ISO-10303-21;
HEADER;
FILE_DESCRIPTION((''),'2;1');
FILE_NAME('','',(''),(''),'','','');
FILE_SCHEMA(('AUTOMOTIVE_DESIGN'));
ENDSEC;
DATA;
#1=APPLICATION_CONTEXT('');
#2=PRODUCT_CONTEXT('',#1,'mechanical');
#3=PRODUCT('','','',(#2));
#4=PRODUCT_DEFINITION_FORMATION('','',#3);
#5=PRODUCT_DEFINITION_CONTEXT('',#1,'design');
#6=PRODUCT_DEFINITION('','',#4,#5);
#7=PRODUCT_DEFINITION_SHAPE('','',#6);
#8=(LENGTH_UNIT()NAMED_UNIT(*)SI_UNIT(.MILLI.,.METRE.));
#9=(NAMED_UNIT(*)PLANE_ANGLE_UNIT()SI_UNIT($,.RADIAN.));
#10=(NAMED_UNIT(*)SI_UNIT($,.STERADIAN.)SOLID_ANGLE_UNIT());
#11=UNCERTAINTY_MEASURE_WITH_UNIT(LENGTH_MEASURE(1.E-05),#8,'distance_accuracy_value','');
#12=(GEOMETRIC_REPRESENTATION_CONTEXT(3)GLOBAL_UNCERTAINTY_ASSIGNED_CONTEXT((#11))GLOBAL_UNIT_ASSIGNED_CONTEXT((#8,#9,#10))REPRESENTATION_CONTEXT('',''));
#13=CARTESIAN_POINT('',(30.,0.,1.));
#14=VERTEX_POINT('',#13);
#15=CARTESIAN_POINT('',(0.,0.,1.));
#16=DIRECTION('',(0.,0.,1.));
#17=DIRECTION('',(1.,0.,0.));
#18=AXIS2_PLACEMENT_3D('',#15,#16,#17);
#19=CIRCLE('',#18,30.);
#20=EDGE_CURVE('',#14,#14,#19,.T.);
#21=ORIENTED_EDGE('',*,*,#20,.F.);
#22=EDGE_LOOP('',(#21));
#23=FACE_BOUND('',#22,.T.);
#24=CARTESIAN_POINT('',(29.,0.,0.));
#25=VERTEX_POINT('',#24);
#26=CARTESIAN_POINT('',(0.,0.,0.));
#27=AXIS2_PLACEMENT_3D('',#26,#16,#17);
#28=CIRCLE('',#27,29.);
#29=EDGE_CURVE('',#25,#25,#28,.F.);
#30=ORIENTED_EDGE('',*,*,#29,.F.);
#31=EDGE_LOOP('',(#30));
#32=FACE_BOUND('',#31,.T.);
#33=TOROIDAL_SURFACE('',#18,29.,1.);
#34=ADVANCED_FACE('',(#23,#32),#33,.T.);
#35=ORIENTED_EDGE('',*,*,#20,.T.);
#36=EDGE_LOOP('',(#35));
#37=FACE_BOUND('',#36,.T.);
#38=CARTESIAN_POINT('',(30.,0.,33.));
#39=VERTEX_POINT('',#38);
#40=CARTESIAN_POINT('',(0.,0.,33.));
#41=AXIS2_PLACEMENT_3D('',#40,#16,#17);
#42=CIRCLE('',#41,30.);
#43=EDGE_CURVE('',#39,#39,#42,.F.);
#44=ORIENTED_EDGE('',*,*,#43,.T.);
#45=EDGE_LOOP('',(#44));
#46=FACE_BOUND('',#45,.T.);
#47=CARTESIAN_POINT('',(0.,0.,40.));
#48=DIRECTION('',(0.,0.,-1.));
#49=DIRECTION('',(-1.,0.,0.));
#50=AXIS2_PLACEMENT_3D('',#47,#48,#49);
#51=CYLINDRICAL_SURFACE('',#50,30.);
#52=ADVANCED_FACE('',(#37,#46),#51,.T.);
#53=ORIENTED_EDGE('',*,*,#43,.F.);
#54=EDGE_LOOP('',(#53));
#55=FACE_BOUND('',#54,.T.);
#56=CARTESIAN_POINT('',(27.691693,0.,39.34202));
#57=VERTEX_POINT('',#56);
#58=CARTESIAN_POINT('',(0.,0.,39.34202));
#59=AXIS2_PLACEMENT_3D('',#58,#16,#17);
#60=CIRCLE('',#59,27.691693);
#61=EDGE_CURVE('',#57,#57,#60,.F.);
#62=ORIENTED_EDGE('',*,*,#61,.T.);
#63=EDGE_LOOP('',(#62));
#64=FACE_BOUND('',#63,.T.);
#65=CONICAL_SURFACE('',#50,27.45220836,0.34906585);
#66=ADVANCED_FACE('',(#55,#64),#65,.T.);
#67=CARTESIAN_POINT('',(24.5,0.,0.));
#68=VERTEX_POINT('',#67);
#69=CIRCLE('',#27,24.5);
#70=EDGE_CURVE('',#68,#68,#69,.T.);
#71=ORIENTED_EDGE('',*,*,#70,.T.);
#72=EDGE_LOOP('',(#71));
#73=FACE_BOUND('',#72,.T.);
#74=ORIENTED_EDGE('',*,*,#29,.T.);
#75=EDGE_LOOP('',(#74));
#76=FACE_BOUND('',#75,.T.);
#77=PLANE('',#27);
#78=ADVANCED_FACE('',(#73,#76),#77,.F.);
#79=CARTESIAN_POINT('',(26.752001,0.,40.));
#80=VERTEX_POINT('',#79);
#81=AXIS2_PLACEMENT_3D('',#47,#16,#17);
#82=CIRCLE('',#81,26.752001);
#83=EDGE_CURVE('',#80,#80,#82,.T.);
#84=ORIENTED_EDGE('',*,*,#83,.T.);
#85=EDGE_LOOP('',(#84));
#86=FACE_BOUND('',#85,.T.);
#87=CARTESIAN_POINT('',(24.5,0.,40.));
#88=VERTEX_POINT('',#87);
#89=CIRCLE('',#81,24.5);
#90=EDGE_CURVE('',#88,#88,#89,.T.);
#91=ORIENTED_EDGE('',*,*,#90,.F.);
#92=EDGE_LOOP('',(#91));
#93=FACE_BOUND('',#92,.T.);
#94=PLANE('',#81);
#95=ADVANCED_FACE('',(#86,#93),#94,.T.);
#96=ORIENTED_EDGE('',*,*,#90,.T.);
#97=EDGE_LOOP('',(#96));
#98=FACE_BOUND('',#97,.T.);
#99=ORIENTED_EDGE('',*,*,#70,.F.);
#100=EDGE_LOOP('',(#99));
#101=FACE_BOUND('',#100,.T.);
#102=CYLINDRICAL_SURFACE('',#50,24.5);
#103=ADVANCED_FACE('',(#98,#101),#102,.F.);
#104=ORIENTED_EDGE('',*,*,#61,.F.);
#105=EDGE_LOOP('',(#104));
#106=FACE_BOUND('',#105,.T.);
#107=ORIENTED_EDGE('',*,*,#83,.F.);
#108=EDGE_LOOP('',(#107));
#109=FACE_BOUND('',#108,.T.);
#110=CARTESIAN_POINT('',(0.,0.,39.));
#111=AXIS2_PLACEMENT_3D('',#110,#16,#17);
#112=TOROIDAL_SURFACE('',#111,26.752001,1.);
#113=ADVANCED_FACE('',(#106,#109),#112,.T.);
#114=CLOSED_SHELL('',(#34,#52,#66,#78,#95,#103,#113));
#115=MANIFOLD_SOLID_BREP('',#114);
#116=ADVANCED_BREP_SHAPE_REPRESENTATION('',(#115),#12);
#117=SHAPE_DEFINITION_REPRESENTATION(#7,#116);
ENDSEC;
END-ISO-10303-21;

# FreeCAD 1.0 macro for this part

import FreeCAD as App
import Part
import Sketcher
from FreeCAD import Vector


def edges_at(feature, points):
    """Names of the edges that pass closest to the given points."""
    edges = feature.Shape.Edges
    near = lambda p: min(range(len(edges)), key=lambda i: edges[i].distToShape(Part.Vertex(*p))[0])
    return sorted({f"Edge{near(p) + 1}" for p in points})

doc = App.newDocument("Part")
body = doc.addObject("PartDesign::Body", "Body")

sketch1 = body.newObject("Sketcher::SketchObject", "Sketch")
sketch1.AttachmentSupport = (doc.getObject("XY_Plane"), [""])
sketch1.MapMode = "FlatFace"
sketch1.addGeometry(Part.Circle(Vector(0, 0, 0), Vector(0, 0, 1), 30), False)
sketch1.addGeometry(Part.Circle(Vector(0, 0, 0), Vector(0, 0, 1), 24), False)
sketch1.addConstraint(Sketcher.Constraint("Coincident", 0, 3, -1, 1))
sketch1.addConstraint(Sketcher.Constraint("Coincident", 1, 3, -1, 1))
sketch1.addConstraint(Sketcher.Constraint("Diameter", 0, 60.0))
sketch1.addConstraint(Sketcher.Constraint("Diameter", 1, 49.0))
pad1 = body.newObject("PartDesign::Pad", "Pad")
pad1.Profile = sketch1
pad1.Length = 40
doc.recompute()

chamfer = body.newObject("PartDesign::Chamfer", "Chamfer")
chamfer.Base = (pad1, edges_at(pad1, [(-30, 0, 40)]))
chamfer.ChamferType = "Two distances"
chamfer.Size = 7
chamfer.Size2 = 2.547792
doc.recompute()

fillet = body.newObject("PartDesign::Fillet", "Fillet")
fillet.Base = (chamfer, edges_at(chamfer, [(-30, 0, 0), (-27.452, 0, 40)]))
fillet.Radius = 1

doc.recompute()
